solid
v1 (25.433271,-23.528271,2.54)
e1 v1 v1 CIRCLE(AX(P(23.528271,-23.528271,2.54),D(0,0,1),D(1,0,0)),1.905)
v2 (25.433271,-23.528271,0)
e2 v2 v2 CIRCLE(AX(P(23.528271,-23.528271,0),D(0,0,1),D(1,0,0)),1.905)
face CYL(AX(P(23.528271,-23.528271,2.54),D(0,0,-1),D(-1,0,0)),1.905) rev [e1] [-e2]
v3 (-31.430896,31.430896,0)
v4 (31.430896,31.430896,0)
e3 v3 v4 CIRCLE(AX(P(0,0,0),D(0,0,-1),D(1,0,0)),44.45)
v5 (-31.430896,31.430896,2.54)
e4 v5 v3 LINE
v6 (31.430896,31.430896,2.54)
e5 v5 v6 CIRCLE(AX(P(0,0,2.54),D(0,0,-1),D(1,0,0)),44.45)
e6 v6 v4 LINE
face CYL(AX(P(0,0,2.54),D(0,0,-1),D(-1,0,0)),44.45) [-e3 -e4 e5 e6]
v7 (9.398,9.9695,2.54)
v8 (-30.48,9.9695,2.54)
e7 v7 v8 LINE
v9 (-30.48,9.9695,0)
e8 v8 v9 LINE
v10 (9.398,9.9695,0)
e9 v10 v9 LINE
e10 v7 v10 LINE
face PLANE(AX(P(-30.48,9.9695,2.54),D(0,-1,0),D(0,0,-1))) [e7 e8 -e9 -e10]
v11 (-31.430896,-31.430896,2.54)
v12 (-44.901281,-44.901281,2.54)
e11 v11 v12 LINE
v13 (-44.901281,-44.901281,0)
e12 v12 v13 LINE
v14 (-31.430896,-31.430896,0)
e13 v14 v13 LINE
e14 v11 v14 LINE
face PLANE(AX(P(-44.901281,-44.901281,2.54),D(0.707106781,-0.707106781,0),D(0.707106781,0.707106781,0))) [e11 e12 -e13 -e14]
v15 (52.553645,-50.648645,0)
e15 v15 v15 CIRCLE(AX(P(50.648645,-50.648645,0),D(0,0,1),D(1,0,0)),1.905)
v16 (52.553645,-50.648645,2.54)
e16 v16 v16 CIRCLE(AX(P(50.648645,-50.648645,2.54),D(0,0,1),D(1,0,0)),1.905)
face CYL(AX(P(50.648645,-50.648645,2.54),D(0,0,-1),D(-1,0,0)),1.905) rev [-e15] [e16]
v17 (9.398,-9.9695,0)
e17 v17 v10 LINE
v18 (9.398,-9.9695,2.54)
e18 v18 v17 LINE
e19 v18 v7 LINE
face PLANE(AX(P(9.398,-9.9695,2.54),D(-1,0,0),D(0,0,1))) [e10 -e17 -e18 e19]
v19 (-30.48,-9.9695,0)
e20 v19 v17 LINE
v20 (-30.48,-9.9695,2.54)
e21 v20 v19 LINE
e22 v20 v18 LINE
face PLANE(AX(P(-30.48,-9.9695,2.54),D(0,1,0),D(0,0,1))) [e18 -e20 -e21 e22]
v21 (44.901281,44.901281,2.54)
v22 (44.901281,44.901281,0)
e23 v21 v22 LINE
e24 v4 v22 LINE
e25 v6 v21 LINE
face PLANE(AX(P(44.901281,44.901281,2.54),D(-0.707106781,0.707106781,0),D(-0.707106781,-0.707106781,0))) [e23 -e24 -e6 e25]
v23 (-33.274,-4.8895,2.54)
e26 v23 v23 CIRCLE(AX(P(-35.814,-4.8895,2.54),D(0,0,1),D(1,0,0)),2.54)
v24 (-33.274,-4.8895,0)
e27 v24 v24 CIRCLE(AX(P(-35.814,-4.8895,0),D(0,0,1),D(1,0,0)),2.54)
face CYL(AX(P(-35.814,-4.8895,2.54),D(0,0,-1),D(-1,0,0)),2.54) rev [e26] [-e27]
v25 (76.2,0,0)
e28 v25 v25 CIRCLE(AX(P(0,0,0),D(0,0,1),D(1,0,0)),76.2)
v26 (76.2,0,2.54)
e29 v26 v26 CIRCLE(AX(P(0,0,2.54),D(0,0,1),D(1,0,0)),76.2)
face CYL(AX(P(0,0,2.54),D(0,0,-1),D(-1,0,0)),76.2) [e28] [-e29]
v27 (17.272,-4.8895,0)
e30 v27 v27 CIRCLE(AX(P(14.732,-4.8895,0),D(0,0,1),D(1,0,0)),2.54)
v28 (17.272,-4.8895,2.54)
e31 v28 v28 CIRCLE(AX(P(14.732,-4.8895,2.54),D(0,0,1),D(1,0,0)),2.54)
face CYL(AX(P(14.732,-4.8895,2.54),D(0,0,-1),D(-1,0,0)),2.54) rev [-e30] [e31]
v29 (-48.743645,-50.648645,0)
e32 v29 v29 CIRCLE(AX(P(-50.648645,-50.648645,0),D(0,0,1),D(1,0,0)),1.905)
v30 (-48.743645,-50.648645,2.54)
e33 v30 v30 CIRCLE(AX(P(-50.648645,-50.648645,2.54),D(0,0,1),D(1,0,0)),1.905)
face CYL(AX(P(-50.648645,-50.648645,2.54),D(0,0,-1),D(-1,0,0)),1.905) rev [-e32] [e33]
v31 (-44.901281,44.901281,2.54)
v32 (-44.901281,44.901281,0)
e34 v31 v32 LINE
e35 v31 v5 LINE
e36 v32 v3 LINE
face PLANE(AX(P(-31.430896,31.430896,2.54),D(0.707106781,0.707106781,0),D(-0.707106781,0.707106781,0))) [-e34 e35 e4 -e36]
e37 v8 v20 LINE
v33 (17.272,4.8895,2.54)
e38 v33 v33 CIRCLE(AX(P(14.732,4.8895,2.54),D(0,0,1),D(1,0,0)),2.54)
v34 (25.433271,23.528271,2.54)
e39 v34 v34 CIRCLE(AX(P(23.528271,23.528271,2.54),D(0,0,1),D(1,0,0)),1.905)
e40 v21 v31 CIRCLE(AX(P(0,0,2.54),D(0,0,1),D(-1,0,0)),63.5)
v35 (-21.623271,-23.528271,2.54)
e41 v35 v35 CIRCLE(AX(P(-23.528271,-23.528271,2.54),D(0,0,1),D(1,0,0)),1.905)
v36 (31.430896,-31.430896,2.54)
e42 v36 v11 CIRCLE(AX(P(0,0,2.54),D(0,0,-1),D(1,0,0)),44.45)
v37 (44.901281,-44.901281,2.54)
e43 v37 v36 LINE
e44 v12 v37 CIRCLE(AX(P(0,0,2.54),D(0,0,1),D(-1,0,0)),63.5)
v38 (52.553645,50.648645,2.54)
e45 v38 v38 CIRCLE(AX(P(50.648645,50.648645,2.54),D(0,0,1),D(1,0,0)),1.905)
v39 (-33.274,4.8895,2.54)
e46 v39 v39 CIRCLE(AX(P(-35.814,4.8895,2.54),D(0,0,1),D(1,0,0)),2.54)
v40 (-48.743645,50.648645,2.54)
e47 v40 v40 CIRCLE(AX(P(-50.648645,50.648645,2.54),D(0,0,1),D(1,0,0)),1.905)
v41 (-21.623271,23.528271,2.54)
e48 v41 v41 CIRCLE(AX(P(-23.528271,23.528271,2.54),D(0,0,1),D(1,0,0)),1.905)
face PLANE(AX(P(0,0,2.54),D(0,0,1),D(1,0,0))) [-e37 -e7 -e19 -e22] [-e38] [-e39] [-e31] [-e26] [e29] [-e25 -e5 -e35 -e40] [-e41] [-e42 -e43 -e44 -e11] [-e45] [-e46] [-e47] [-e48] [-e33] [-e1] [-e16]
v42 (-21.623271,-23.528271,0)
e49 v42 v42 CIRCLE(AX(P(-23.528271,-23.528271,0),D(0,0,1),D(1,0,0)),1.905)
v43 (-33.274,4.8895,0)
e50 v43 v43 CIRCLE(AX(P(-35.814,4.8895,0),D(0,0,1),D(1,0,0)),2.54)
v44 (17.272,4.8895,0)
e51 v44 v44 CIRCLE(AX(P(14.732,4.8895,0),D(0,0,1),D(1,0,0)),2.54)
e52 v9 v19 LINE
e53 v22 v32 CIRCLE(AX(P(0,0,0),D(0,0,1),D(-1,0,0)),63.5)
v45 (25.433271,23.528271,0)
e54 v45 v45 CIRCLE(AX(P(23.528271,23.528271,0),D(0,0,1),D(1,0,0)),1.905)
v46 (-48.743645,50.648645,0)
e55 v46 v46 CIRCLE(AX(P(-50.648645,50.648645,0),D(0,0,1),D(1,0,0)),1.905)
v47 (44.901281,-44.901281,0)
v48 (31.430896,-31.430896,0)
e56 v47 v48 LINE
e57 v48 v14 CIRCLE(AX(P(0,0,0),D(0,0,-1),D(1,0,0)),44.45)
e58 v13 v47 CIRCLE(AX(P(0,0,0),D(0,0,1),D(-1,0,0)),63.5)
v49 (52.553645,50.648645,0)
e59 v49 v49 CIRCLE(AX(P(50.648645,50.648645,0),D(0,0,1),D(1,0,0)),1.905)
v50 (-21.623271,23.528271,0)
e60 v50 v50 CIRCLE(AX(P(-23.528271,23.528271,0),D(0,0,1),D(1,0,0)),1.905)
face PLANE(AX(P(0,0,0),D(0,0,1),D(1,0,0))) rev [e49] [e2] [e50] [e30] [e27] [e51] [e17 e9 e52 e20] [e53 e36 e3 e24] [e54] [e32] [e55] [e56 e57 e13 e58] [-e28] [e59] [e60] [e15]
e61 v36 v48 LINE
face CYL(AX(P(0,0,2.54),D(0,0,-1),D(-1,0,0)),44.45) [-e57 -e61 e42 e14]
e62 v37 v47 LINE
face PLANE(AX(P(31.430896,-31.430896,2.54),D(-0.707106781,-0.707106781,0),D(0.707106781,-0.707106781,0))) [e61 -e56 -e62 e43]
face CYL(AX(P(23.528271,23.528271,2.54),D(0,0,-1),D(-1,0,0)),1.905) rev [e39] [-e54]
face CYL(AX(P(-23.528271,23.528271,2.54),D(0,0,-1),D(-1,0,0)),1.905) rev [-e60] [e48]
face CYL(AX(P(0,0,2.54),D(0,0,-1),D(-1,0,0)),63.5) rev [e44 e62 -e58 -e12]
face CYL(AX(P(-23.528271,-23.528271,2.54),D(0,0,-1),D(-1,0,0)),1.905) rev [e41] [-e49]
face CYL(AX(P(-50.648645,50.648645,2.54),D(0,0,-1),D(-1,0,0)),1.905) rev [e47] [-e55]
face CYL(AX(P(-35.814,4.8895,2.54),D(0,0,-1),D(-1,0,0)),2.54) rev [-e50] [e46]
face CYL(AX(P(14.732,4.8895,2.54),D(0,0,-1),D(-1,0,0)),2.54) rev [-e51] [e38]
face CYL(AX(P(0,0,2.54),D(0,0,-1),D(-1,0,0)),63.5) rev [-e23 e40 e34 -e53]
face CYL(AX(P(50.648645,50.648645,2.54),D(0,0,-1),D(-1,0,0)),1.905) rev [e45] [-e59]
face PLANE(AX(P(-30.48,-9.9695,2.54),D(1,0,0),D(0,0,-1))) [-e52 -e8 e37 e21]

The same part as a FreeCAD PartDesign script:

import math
import FreeCAD as App
import Part
import Sketcher
from FreeCAD import Vector
Q = App.Units.Quantity


def add_polygon(sketch, points):
    """Adds a closed chain of lines whose ends are joined by coincident constraints."""
    first, n = sketch.GeometryCount, len(points)
    for a, b in zip(points, points[1:] + points[:1]):
        sketch.addGeometry(Part.LineSegment(App.Vector(*a, 0), App.Vector(*b, 0)), False)
    for i in range(n):
        sketch.addConstraint(Sketcher.Constraint("Coincident", first + i, 2, first + (i + 1) % n, 1))

doc = App.newDocument("Part")
body = doc.addObject("PartDesign::Body", "Body")

# Sketch on XY plane
sketch1 = body.newObject("Sketcher::SketchObject", "Sketch")
sketch1.AttachmentSupport = (doc.getObject("XY_Plane"), [""])
sketch1.MapMode = "FlatFace"
sketch1.addGeometry(Part.Circle(Vector(0, 0, 0), Vector(0, 0, 1), 76.2), False)  # 0
sketch1.addGeometry(Part.Circle(Vector(-50.6, -50.6, 0), Vector(0, 0, 1), 1.9), False)  # 1
sketch1.addGeometry(Part.Circle(Vector(-35.8, -4.9, 0), Vector(0, 0, 1), 2.5), False)  # 2
sketch1.addGeometry(Part.Circle(Vector(-23.5, -23.5, 0), Vector(0, 0, 1), 1.9), False)  # 3
sketch1.addGeometry(Part.ArcOfCircle(Part.Circle(Vector(0, 0, 0), Vector(0, 0, 1), 63.5), math.radians(-135), math.radians(-45)), False)  # 4
sketch1.addGeometry(Part.LineSegment(Vector(-44.9, -44.9, 0), Vector(-31.4, -31.4, 0)), False)  # 5
sketch1.addGeometry(Part.ArcOfCircle(Part.Circle(Vector(0, 0, 0), Vector(0, 0, 1), 44.5), math.radians(-135), math.radians(-45)), False)  # 6
sketch1.addGeometry(Part.LineSegment(Vector(31.4, -31.4, 0), Vector(44.9, -44.9, 0)), False)  # 7
sketch1.addGeometry(Part.Circle(Vector(50.6, -50.6, 0), Vector(0, 0, 1), 1.9), False)  # 8
sketch1.addGeometry(Part.Circle(Vector(23.5, -23.5, 0), Vector(0, 0, 1), 1.9), False)  # 9
sketch1.addGeometry(Part.Circle(Vector(14.7, -4.9, 0), Vector(0, 0, 1), 2.5), False)  # 10
sketch1.addGeometry(Part.Circle(Vector(-35.8, 4.9, 0), Vector(0, 0, 1), 2.5), False)  # 11
add_polygon(sketch1, [(9.4, -10), (-30.5, -10), (-30.5, 10), (9.4, 10)])  # lines 12-15
sketch1.addGeometry(Part.Circle(Vector(-23.5, 23.5, 0), Vector(0, 0, 1), 1.9), False)  # 16
sketch1.addGeometry(Part.Circle(Vector(-50.6, 50.6, 0), Vector(0, 0, 1), 1.9), False)  # 17
sketch1.addGeometry(Part.Circle(Vector(14.7, 4.9, 0), Vector(0, 0, 1), 2.5), False)  # 18
sketch1.addGeometry(Part.Circle(Vector(23.5, 23.5, 0), Vector(0, 0, 1), 1.9), False)  # 19
sketch1.addGeometry(Part.ArcOfCircle(Part.Circle(Vector(0, 0, 0), Vector(0, 0, 1), 63.5), math.radians(45), math.radians(135)), False)  # 20
sketch1.addGeometry(Part.LineSegment(Vector(44.9, 44.9, 0), Vector(31.4, 31.4, 0)), False)  # 21
sketch1.addGeometry(Part.ArcOfCircle(Part.Circle(Vector(0, 0, 0), Vector(0, 0, 1), 44.5), math.radians(45), math.radians(135)), False)  # 22
sketch1.addGeometry(Part.LineSegment(Vector(-31.4, 31.4, 0), Vector(-44.9, 44.9, 0)), False)  # 23
sketch1.addGeometry(Part.Circle(Vector(50.6, 50.6, 0), Vector(0, 0, 1), 1.9), False)  # 24
sketch1.addConstraint([
    Sketcher.Constraint("Coincident", 4, 1, 5, 1),
    Sketcher.Constraint("Coincident", 5, 2, 6, 1),
    Sketcher.Constraint("Coincident", 6, 2, 7, 1),
    Sketcher.Constraint("Coincident", 7, 2, 4, 2),
    Sketcher.Constraint("Coincident", 20, 1, 21, 1),
    Sketcher.Constraint("Coincident", 21, 2, 22, 1),
    Sketcher.Constraint("Coincident", 22, 2, 23, 1),
    Sketcher.Constraint("Coincident", 23, 2, 20, 2),
    Sketcher.Constraint("Horizontal", 12),
    Sketcher.Constraint("Vertical", 13),
    Sketcher.Constraint("Horizontal", 14),
    Sketcher.Constraint("Vertical", 15),
    Sketcher.Constraint("Coincident", 0, 3, -1, 1),
    Sketcher.Constraint("Coincident", 4, 3, -1, 1),
    Sketcher.Constraint("Coincident", 6, 3, -1, 1),
    Sketcher.Constraint("Coincident", 20, 3, -1, 1),
    Sketcher.Constraint("Coincident", 22, 3, -1, 1),
    Sketcher.Constraint("Equal", 1, 3),
    Sketcher.Constraint("Equal", 3, 8),
    Sketcher.Constraint("Equal", 8, 9),
    Sketcher.Constraint("Equal", 2, 10),
    Sketcher.Constraint("Equal", 10, 11),
    Sketcher.Constraint("Equal", 9, 16),
    Sketcher.Constraint("Equal", 16, 17),
    Sketcher.Constraint("Equal", 11, 18),
    Sketcher.Constraint("Equal", 17, 19),
    Sketcher.Constraint("Equal", 4, 20),
    Sketcher.Constraint("Equal", 6, 22),
    Sketcher.Constraint("Equal", 19, 24),
    Sketcher.Constraint("Symmetric", 9, 3, 16, 3, -1, 1),
    Sketcher.Constraint("Symmetric", 8, 3, 17, 3, -1, 1),
    Sketcher.Constraint("Symmetric", 3, 3, 19, 3, -1, 1),
    Sketcher.Constraint("Symmetric", 1, 3, 24, 3, -1, 1),
    Sketcher.Constraint("Symmetric", 1, 3, 8, 3, -2),
    Sketcher.Constraint("Symmetric", 3, 3, 9, 3, -2),
    Sketcher.Constraint("Symmetric", 2, 3, 11, 3, -1),
    Sketcher.Constraint("Symmetric", 10, 3, 18, 3, -1),
    Sketcher.Constraint("Perpendicular", 5, 7),
    Sketcher.Constraint("Perpendicular", 7, 21),
    Sketcher.Constraint("Perpendicular", 21, 23),
    Sketcher.Constraint("Horizontal", 2, 3, 10, 3),
    Sketcher.Constraint("Horizontal", 5, 2, 6, 2),
    Sketcher.Constraint("Horizontal", 4, 1, 7, 2),
    Sketcher.Constraint("Horizontal", 21, 2, 22, 2),
    Sketcher.Constraint("Vertical", 7, 2, 20, 1),
    Sketcher.Constraint("Diameter", 0, Q("6 in")),
    Sketcher.Constraint("Diameter", 2, Q("0.2 in")),
    Sketcher.Constraint("Radius", 4, Q("2.5 in")),
    Sketcher.Constraint("Diameter", 1, Q("0.15 in")),
    Sketcher.Constraint("Radius", 6, Q("1.75 in")),
    Sketcher.Constraint("DistanceX", 12, 2, 12, 1, Q("1.57 in")),
    Sketcher.Constraint("DistanceX", 12, 2, -1, 1, Q("1.2 in")),
    Sketcher.Constraint("DistanceY", 12, 2, 2, 3, Q("0.2 in")),
    Sketcher.Constraint("DistanceY", 11, 3, 13, 2, Q("0.2 in")),
    Sketcher.Constraint("DistanceY", 13, 1, 13, 2, Q("0.785 in")),
    Sketcher.Constraint("DistanceX", 2, 3, -1, 1, Q("1.41 in")),
    Sketcher.Constraint("DistanceX", -1, 1, 10, 3, Q("0.58 in")),
    Sketcher.Constraint("DistanceX", 3, 3, -1, 1, 23.528271),
    Sketcher.Constraint("DistanceY", 3, 3, -1, 1, 23.528271),
    Sketcher.Constraint("DistanceX", 4, 1, -1, 1, 44.901281),
    Sketcher.Constraint("DistanceX", 1, 3, 5, 2, 19.217748),
    Sketcher.Constraint("DistanceY", 1, 3, 5, 2, 19.217748),
])
pad1 = body.newObject("PartDesign::Pad", "Pad")
pad1.Profile = sketch1
pad1.Length = Q("0.1 in")

doc.recompute()
